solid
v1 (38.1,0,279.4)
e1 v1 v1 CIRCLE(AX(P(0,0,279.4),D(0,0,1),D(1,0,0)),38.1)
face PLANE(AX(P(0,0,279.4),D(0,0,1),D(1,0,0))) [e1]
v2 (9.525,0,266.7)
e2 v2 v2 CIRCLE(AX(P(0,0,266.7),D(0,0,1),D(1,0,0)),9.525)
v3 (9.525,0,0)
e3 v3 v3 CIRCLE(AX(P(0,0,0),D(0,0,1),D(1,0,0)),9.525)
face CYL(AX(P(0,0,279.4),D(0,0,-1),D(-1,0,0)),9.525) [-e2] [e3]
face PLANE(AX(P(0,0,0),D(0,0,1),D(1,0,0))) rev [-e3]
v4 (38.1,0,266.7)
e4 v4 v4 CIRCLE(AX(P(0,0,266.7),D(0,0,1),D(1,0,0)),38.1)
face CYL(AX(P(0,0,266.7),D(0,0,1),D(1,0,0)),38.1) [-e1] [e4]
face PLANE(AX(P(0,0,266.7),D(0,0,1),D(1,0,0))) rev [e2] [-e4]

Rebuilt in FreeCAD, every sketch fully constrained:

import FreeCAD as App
import Part
import Sketcher
Q = App.Units.Quantity

doc = App.newDocument("Part")
body = doc.addObject("PartDesign::Body", "Body")

# Sketch on XY plane
sketch1 = body.newObject("Sketcher::SketchObject", "Sketch")
sketch1.AttachmentSupport = (doc.getObject("XY_Plane"), [""])
sketch1.MapMode = "FlatFace"
sketch1.addGeometry(Part.Circle(App.Vector(0, 0, 0), App.Vector(0, 0, 1), 9.525), False)
sketch1.addConstraint(Sketcher.Constraint("Coincident", 0, 3, -1, 1))
sketch1.addConstraint(Sketcher.Constraint("Diameter", 0, Q("0.75 in")))
pad1 = body.newObject("PartDesign::Pad", "Pad")
pad1.Profile = sketch1
pad1.Length = Q("11 in")

# Sketch on XY plane
sketch2 = body.newObject("Sketcher::SketchObject", "Sketch001")
sketch2.AttachmentSupport = (doc.getObject("XY_Plane"), [""])
sketch2.MapMode = "FlatFace"
sketch2.AttachmentOffset = App.Placement(App.Vector(0, 0, 11 * 25.4), App.Rotation())
sketch2.addGeometry(Part.Circle(App.Vector(0, 0, 0), App.Vector(0, 0, 1), 38.1), False)
sketch2.addConstraint(Sketcher.Constraint("Coincident", 0, 3, -1, 1))
sketch2.addConstraint(Sketcher.Constraint("Diameter", 0, Q("3 in")))
pad2 = body.newObject("PartDesign::Pad", "Pad001")
pad2.Profile = sketch2
pad2.Length = Q("0.5 in")
pad2.Reversed = True

doc.recompute()
